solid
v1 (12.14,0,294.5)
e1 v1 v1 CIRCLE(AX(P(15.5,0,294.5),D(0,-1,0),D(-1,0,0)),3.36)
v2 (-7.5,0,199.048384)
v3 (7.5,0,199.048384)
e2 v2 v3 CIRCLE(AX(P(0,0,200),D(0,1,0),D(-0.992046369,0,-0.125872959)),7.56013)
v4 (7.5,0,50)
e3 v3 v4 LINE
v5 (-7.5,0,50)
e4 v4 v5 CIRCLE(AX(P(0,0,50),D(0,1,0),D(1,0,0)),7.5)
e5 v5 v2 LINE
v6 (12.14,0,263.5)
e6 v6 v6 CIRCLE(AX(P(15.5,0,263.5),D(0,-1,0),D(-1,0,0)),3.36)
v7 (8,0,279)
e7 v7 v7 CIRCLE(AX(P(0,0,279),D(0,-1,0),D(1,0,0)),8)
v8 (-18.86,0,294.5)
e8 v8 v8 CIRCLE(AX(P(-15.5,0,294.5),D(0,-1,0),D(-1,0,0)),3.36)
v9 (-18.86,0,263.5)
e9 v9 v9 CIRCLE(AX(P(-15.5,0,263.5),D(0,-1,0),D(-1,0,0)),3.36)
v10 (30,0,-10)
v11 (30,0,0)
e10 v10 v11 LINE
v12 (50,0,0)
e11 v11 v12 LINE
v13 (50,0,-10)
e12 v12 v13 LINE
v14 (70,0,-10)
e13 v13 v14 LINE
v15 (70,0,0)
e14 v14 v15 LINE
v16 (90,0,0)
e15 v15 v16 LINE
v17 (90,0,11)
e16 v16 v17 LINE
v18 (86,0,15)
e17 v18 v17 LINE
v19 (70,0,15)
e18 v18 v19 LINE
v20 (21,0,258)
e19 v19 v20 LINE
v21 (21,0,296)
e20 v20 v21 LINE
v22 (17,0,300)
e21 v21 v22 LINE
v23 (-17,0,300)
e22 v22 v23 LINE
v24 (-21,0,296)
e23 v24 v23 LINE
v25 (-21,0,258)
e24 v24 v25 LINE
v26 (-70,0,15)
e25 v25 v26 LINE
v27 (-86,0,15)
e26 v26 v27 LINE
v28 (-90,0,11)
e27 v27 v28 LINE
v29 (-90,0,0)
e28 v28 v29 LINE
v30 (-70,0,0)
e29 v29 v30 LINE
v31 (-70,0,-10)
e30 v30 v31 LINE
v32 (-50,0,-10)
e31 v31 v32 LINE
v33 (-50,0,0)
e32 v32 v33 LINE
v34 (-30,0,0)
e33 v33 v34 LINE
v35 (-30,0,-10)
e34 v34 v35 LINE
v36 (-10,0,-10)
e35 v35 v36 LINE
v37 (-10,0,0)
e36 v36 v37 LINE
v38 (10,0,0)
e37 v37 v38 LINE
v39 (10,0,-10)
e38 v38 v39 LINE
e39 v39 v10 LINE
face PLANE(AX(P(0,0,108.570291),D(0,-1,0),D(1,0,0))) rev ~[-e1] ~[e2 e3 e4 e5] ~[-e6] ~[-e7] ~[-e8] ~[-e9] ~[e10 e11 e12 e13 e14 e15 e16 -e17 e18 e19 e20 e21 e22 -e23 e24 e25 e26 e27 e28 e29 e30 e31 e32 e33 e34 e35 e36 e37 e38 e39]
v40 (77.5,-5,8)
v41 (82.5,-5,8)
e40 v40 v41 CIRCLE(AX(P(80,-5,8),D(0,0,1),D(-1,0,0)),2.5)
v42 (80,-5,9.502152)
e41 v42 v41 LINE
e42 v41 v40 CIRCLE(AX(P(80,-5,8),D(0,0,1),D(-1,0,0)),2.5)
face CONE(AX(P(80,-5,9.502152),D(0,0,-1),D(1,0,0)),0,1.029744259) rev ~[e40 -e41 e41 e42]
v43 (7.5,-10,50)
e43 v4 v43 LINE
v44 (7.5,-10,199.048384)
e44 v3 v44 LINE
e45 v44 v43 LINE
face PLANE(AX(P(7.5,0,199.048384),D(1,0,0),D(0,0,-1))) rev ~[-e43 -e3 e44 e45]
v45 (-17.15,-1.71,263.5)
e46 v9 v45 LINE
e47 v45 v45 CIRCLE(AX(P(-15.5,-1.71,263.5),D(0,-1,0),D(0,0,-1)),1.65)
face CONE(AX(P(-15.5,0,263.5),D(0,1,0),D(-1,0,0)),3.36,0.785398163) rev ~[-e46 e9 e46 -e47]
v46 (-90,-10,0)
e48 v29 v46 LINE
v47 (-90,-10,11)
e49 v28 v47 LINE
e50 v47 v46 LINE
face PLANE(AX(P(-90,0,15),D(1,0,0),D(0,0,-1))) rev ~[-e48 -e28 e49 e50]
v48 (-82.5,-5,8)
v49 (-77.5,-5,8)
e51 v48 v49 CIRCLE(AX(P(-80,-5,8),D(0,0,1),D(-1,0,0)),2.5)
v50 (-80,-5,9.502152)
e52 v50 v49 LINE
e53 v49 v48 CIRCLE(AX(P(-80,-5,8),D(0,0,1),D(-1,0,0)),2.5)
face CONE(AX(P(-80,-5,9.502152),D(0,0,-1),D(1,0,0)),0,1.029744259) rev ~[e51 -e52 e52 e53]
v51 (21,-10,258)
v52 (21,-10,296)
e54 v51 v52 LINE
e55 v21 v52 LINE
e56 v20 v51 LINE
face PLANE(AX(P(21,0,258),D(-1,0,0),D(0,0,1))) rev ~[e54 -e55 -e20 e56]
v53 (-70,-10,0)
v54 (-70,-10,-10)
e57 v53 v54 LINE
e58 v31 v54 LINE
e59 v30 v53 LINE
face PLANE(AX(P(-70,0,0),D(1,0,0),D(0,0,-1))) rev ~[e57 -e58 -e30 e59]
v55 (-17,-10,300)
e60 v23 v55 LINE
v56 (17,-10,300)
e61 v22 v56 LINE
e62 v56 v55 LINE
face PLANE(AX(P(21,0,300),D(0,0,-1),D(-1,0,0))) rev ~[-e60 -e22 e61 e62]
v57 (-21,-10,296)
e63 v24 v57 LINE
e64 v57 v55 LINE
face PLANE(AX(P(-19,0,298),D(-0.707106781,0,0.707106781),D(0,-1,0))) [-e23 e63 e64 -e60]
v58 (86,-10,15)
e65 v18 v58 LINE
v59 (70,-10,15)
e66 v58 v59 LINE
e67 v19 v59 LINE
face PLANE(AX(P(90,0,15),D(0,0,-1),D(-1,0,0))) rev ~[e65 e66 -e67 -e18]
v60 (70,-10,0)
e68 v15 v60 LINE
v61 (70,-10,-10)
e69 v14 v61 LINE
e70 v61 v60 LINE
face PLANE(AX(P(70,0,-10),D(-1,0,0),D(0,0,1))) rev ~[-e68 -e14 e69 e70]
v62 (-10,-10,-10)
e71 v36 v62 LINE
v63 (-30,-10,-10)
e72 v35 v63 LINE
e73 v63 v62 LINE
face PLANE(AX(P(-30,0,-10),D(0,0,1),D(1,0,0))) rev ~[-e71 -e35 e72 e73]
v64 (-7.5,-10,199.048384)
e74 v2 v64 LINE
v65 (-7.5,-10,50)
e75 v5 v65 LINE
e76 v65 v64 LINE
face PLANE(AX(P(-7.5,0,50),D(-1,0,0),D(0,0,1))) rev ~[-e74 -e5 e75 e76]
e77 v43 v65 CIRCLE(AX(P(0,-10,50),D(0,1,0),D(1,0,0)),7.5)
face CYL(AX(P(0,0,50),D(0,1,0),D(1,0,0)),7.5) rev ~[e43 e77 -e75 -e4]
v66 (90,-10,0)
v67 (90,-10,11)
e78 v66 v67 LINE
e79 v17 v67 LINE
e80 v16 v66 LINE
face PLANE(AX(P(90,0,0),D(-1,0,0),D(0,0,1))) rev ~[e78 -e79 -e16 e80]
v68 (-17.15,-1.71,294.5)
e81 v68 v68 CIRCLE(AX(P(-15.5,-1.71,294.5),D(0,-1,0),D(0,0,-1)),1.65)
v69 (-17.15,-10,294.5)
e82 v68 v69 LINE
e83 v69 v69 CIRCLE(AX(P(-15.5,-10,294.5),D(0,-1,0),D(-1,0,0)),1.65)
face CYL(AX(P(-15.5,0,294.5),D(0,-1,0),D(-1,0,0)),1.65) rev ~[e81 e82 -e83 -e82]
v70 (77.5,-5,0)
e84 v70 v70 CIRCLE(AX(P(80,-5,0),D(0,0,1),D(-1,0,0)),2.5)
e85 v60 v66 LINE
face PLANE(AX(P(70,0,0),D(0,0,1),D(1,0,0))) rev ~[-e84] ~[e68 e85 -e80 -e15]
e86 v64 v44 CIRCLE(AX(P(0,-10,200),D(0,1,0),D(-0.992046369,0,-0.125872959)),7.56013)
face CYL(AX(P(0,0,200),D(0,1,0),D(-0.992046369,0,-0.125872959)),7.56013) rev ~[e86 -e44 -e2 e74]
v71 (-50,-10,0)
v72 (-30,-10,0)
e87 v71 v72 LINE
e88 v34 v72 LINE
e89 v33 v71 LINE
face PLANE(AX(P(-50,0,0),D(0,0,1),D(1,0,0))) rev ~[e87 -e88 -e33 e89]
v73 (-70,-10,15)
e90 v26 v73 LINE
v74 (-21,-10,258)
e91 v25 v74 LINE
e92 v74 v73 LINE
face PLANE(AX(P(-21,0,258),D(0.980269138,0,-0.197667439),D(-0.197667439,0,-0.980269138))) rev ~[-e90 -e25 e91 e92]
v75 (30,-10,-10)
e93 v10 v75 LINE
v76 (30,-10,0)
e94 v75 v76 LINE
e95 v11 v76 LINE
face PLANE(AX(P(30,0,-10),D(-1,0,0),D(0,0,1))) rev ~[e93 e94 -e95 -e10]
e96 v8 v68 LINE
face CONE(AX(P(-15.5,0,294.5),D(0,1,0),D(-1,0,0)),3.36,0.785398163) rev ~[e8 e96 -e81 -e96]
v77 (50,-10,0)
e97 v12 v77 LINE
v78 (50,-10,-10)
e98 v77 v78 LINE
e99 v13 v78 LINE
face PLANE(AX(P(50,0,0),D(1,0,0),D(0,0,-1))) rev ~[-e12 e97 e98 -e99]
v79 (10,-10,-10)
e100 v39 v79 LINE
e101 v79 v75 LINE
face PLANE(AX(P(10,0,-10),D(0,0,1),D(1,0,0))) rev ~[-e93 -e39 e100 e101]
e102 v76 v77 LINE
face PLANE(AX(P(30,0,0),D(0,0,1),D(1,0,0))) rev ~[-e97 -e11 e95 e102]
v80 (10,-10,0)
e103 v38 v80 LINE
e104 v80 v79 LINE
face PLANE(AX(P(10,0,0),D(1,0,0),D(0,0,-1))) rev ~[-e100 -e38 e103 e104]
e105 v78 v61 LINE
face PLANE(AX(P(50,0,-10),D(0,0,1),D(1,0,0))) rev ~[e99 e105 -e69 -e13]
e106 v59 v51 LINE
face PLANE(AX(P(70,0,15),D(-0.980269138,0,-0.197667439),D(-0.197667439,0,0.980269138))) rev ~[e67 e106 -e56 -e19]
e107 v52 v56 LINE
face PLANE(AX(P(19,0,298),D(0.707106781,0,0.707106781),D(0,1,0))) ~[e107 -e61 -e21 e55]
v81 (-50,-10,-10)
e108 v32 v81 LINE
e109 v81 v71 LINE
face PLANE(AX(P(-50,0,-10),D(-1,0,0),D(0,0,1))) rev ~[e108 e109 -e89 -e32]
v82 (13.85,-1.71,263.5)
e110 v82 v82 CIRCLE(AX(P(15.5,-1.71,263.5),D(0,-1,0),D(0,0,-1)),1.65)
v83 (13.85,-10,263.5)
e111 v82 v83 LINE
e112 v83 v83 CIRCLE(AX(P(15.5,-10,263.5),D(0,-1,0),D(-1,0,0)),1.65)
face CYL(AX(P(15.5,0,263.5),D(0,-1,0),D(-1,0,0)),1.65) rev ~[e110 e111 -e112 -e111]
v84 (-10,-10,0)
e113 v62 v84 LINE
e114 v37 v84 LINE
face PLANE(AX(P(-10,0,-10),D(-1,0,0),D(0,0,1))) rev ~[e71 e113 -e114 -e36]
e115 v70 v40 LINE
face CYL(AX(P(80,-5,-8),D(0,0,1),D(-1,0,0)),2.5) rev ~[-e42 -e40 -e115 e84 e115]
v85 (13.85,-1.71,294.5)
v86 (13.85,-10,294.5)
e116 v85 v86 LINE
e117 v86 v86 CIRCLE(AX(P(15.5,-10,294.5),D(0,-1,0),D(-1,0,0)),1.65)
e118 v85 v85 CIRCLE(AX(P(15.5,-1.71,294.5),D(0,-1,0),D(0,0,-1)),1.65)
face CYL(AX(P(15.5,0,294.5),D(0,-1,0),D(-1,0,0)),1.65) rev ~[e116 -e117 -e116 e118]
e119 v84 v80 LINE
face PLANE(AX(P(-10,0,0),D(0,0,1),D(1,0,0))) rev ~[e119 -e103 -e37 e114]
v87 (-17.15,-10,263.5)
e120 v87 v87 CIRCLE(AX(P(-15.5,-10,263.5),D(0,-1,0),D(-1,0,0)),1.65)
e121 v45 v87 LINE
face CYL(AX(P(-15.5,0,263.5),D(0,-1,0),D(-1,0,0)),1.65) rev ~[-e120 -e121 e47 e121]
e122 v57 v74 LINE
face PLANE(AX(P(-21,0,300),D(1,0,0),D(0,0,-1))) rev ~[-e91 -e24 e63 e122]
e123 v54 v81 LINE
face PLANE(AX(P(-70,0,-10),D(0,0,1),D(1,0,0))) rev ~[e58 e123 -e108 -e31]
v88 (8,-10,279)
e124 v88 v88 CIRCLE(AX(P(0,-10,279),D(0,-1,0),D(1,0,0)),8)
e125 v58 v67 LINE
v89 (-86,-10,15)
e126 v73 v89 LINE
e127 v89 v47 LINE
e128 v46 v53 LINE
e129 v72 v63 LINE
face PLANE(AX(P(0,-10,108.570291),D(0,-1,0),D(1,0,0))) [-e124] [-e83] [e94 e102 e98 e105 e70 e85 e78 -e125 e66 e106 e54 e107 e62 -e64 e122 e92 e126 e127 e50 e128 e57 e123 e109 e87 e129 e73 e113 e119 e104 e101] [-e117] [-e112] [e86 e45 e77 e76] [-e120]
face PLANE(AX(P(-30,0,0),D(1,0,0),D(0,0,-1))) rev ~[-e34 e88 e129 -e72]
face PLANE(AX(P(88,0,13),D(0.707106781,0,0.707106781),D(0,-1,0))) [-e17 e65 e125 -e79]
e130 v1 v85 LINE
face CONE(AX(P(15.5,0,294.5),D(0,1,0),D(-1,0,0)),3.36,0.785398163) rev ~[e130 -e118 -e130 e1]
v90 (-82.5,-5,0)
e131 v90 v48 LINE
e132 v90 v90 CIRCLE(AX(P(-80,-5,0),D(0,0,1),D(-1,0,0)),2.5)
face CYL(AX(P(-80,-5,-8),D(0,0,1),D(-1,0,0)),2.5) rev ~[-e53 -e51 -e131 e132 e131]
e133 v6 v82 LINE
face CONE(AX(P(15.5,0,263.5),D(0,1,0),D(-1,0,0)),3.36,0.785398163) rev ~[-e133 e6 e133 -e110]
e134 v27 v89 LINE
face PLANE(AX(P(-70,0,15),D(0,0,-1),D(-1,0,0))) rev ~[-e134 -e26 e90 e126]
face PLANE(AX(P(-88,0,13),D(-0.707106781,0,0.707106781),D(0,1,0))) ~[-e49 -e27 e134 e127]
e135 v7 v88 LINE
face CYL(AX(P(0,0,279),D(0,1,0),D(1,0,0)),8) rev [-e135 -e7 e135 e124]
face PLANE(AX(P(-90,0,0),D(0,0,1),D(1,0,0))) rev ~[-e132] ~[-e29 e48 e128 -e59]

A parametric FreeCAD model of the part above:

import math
import FreeCAD as App
import Part
import Sketcher
Q = App.Units.Quantity


def edges_at(feature, points):
    """Names of the edges that pass closest to the given points."""
    edges = feature.Shape.Edges
    near = lambda p: min(range(len(edges)), key=lambda i: edges[i].distToShape(Part.Vertex(*p))[0])
    return sorted({f"Edge{near(p) + 1}" for p in points})

doc = App.newDocument("Part")
body = doc.addObject("PartDesign::Body", "Body")

sketch1 = body.newObject("Sketcher::SketchObject", "Sketch")
sketch1.AttachmentSupport = (doc.getObject("XZ_Plane"), [""])
sketch1.MapMode = "FlatFace"
sketch1.addGeometry([
    Part.LineSegment(App.Vector(-10, 0, 0), App.Vector(10, 0, 0)),
    Part.LineSegment(App.Vector(10, 0, 0), App.Vector(10, -10, 0)),
    Part.LineSegment(App.Vector(10, -10, 0), App.Vector(30, -10, 0)),
    Part.LineSegment(App.Vector(30, -10, 0), App.Vector(30, 0, 0)),
    Part.LineSegment(App.Vector(30, 0, 0), App.Vector(50, 0, 0)),
    Part.LineSegment(App.Vector(50, 0, 0), App.Vector(50, -10, 0)),
    Part.LineSegment(App.Vector(50, -10, 0), App.Vector(70, -10, 0)),
    Part.LineSegment(App.Vector(70, -10, 0), App.Vector(70, 0, 0)),
    Part.LineSegment(App.Vector(70, 0, 0), App.Vector(90, 0, 0)),
    Part.LineSegment(App.Vector(90, 0, 0), App.Vector(90, 15, 0)),
    Part.LineSegment(App.Vector(90, 15, 0), App.Vector(70, 15, 0)),
    Part.LineSegment(App.Vector(70, 15, 0), App.Vector(21, 258, 0)),
    Part.LineSegment(App.Vector(21, 258, 0), App.Vector(21, 300, 0)),
    Part.LineSegment(App.Vector(21, 300, 0), App.Vector(-21, 300, 0)),
    Part.LineSegment(App.Vector(-21, 300, 0), App.Vector(-21, 258, 0)),
    Part.LineSegment(App.Vector(-21, 258, 0), App.Vector(-70, 15, 0)),
    Part.LineSegment(App.Vector(-70, 15, 0), App.Vector(-90, 15, 0)),
    Part.LineSegment(App.Vector(-90, 15, 0), App.Vector(-90, 0, 0)),
    Part.LineSegment(App.Vector(-90, 0, 0), App.Vector(-70, 0, 0)),
    Part.LineSegment(App.Vector(-70, 0, 0), App.Vector(-70, -10, 0)),
    Part.LineSegment(App.Vector(-70, -10, 0), App.Vector(-50, -10, 0)),
    Part.LineSegment(App.Vector(-50, -10, 0), App.Vector(-50, 0, 0)),
    Part.LineSegment(App.Vector(-50, 0, 0), App.Vector(-30, 0, 0)),
    Part.LineSegment(App.Vector(-30, 0, 0), App.Vector(-30, -10, 0)),
    Part.LineSegment(App.Vector(-30, -10, 0), App.Vector(-10, -10, 0)),
    Part.LineSegment(App.Vector(-10, -10, 0), App.Vector(-10, 0, 0)),
    Part.LineSegment(App.Vector(8, 199, 0), App.Vector(8, 50, 0)),
    Part.ArcOfCircle(Part.Circle(App.Vector(0, 50, 0), App.Vector(0, 0, 1), 8), math.radians(180), math.radians(360)),
    Part.LineSegment(App.Vector(-8, 50, 0), App.Vector(-8, 199, 0)),
    Part.ArcOfCircle(Part.Circle(App.Vector(0, 200, 0), App.Vector(0, 0, 1), 8), math.radians(-7), math.radians(187)),
    Part.Circle(App.Vector(0, 279, 0), App.Vector(0, 0, 1), 8),
], False)
sketch1.addConstraint([
    Sketcher.Constraint("Coincident", 0, 2, 1, 1),
    Sketcher.Constraint("Coincident", 1, 2, 2, 1),
    Sketcher.Constraint("Coincident", 2, 2, 3, 1),
    Sketcher.Constraint("Coincident", 3, 2, 4, 1),
    Sketcher.Constraint("Coincident", 4, 2, 5, 1),
    Sketcher.Constraint("Coincident", 5, 2, 6, 1),
    Sketcher.Constraint("Coincident", 6, 2, 7, 1),
    Sketcher.Constraint("Coincident", 7, 2, 8, 1),
    Sketcher.Constraint("Coincident", 8, 2, 9, 1),
    Sketcher.Constraint("Coincident", 9, 2, 10, 1),
    Sketcher.Constraint("Coincident", 10, 2, 11, 1),
    Sketcher.Constraint("Coincident", 11, 2, 12, 1),
    Sketcher.Constraint("Coincident", 12, 2, 13, 1),
    Sketcher.Constraint("Coincident", 13, 2, 14, 1),
    Sketcher.Constraint("Coincident", 14, 2, 15, 1),
    Sketcher.Constraint("Coincident", 15, 2, 16, 1),
    Sketcher.Constraint("Coincident", 16, 2, 17, 1),
    Sketcher.Constraint("Coincident", 17, 2, 18, 1),
    Sketcher.Constraint("Coincident", 18, 2, 19, 1),
    Sketcher.Constraint("Coincident", 19, 2, 20, 1),
    Sketcher.Constraint("Coincident", 20, 2, 21, 1),
    Sketcher.Constraint("Coincident", 21, 2, 22, 1),
    Sketcher.Constraint("Coincident", 22, 2, 23, 1),
    Sketcher.Constraint("Coincident", 23, 2, 24, 1),
    Sketcher.Constraint("Coincident", 24, 2, 25, 1),
    Sketcher.Constraint("Coincident", 25, 2, 0, 1),
    Sketcher.Constraint("Tangent", 26, 2, 27, 2),
    Sketcher.Constraint("Tangent", 27, 1, 28, 1),
    Sketcher.Constraint("Coincident", 28, 2, 29, 2),
    Sketcher.Constraint("Coincident", 29, 1, 26, 1),
    Sketcher.Constraint("Horizontal", 0),
    Sketcher.Constraint("Vertical", 1),
    Sketcher.Constraint("Horizontal", 2),
    Sketcher.Constraint("Vertical", 3),
    Sketcher.Constraint("Horizontal", 4),
    Sketcher.Constraint("Vertical", 5),
    Sketcher.Constraint("Horizontal", 6),
    Sketcher.Constraint("Vertical", 7),
    Sketcher.Constraint("Horizontal", 8),
    Sketcher.Constraint("Vertical", 9),
    Sketcher.Constraint("Horizontal", 10),
    Sketcher.Constraint("Vertical", 12),
    Sketcher.Constraint("Horizontal", 13),
    Sketcher.Constraint("Vertical", 14),
    Sketcher.Constraint("Horizontal", 16),
    Sketcher.Constraint("Vertical", 17),
    Sketcher.Constraint("Horizontal", 18),
    Sketcher.Constraint("Vertical", 19),
    Sketcher.Constraint("Horizontal", 20),
    Sketcher.Constraint("Vertical", 21),
    Sketcher.Constraint("Horizontal", 22),
    Sketcher.Constraint("Vertical", 23),
    Sketcher.Constraint("Horizontal", 24),
    Sketcher.Constraint("Vertical", 25),
    Sketcher.Constraint("Vertical", 26),
    Sketcher.Constraint("Vertical", 28),
    Sketcher.Constraint("Symmetric", 8, 2, 17, 2, -1, 1),
    Sketcher.Constraint("Symmetric", 4, 2, 21, 2, -1, 1),
    Sketcher.Constraint("Symmetric", 0, 2, 25, 2, -1, 1),
    Sketcher.Constraint("Symmetric", 11, 2, 14, 2, -2),
    Sketcher.Constraint("Symmetric", 10, 2, 15, 2, -2),
    Sketcher.Constraint("Symmetric", 7, 2, 18, 2, -2),
    Sketcher.Constraint("Symmetric", 3, 2, 22, 2, -2),
    Sketcher.Constraint("Symmetric", 28, 2, 29, 1, -2),
    Sketcher.Constraint("PointOnObject", 30, 3, -2),
    Sketcher.Constraint("Horizontal", 2, 2, 5, 2),
    Sketcher.Constraint("Horizontal", 6, 2, 19, 2),
    Sketcher.Constraint("Horizontal", 20, 2, 23, 2),
    Sketcher.Constraint("Vertical", 7, 2, 10, 2),
    Sketcher.Constraint("Equal", 0, 2),
    Sketcher.Constraint("Equal", 2, 4),
    Sketcher.Constraint("Equal", 4, 6),
    Sketcher.Constraint("Equal", 6, 8),
    Sketcher.Constraint("Equal", 13, 12),
    Sketcher.Constraint("Diameter", 30, Q("16 mm")),
    Sketcher.Constraint("Radius", 27, Q("7.5 mm")),
    Sketcher.Constraint("DistanceX", 0, 1, 0, 2, Q("20 mm")),
    Sketcher.Constraint("DistanceX", 13, 2, 13, 1, Q("42 mm")),
    Sketcher.Constraint("DistanceY", 1, 2, 1, 1, Q("10 mm")),
    Sketcher.Constraint("DistanceY", 9, 1, 9, 2, Q("15 mm")),
    Sketcher.Constraint("DistanceY", -1, 1, 27, 3, Q("50 mm")),
    Sketcher.Constraint("DistanceY", -1, 1, 29, 3, Q("200 mm")),
    Sketcher.Constraint("DistanceY", -1, 1, 30, 3, Q("279 mm")),
    Sketcher.Constraint("DistanceY", -1, 1, 11, 2, Q("258 mm")),
    Sketcher.Constraint("Radius", 29, Q("7.56013 mm")),
])
pad1 = body.newObject("PartDesign::Pad", "Pad")
pad1.Profile = sketch1
pad1.Length = 10
doc.recompute()

chamfer = body.newObject("PartDesign::Chamfer", "Chamfer")
chamfer.Base = (pad1, edges_at(pad1, [(21, -5, 300), (-21, -5, 300)]))
chamfer.Size = 4
doc.recompute()

chamfer2 = body.newObject("PartDesign::Chamfer", "Chamfer001")
chamfer2.Base = (chamfer, edges_at(chamfer, [(-90, -5, 15), (90, -5, 15)]))
chamfer2.Size = 4

sketch2 = body.newObject("Sketcher::SketchObject", "Sketch001")
sketch2.AttachmentSupport = (doc.getObject("XZ_Plane"), [""])
sketch2.MapMode = "FlatFace"
sketch2.addGeometry([
    Part.Circle(App.Vector(-15.5, 294.5, 0), App.Vector(0, 0, 1), 1.6),
    Part.Circle(App.Vector(15.5, 294.5, 0), App.Vector(0, 0, 1), 1.6),
    Part.Circle(App.Vector(15.5, 263.5, 0), App.Vector(0, 0, 1), 1.6),
    Part.Circle(App.Vector(-15.5, 263.5, 0), App.Vector(0, 0, 1), 1.6),
], False)
sketch2.addConstraint([
    Sketcher.Constraint("Equal", 0, 1),
    Sketcher.Constraint("Equal", 1, 2),
    Sketcher.Constraint("Equal", 2, 3),
    Sketcher.Constraint("Symmetric", 0, 3, 1, 3, -2),
    Sketcher.Constraint("Symmetric", 2, 3, 3, 3, -2),
    Sketcher.Constraint("Vertical", 1, 3, 2, 3),
    Sketcher.Constraint("Diameter", 0, Q("3.3 mm")),
    Sketcher.Constraint("DistanceX", 0, 3, 1, 3, Q("31 mm")),
    Sketcher.Constraint("DistanceY", 2, 3, 1, 3, Q("31 mm")),
    Sketcher.Constraint("DistanceY", -1, 1, 0, 3, Q("294.5 mm")),
])
doc.recompute()
hole = body.newObject("PartDesign::Hole", "Hole")
hole.Profile = sketch2
hole.ThreadType = "None"
hole.Diameter = 3.3
hole.DepthType = "ThroughAll"
hole.HoleCutType = "Countersink"
hole.HoleCutDiameter = 6.72
hole.HoleCutCountersinkAngle = 90
hole.Reversed = True

sketch3 = body.newObject("Sketcher::SketchObject", "Sketch002")
sketch3.AttachmentSupport = (doc.getObject("XY_Plane"), [""])
sketch3.MapMode = "FlatFace"
sketch3.addGeometry([
    Part.Circle(App.Vector(-80, -5, 0), App.Vector(0, 0, 1), 2.5),
    Part.Circle(App.Vector(80, -5, 0), App.Vector(0, 0, 1), 2.5),
], False)
sketch3.addConstraint([
    Sketcher.Constraint("Equal", 0, 1),
    Sketcher.Constraint("Symmetric", 0, 3, 1, 3, -2),
    Sketcher.Constraint("Diameter", 0, Q("5 mm")),
    Sketcher.Constraint("DistanceX", 0, 3, -1, 1, Q("80 mm")),
    Sketcher.Constraint("DistanceY", 0, 3, -1, 1, Q("5 mm")),
])
doc.recompute()
hole2 = body.newObject("PartDesign::Hole", "Hole001")
hole2.Profile = sketch3
hole2.ThreadType = "None"
hole2.Diameter = 5
hole2.DepthType = "Dimension"
hole2.Depth = 8
hole2.DrillPoint = "Angled"
hole2.DrillPointAngle = 118
hole2.Reversed = True

doc.recompute()
